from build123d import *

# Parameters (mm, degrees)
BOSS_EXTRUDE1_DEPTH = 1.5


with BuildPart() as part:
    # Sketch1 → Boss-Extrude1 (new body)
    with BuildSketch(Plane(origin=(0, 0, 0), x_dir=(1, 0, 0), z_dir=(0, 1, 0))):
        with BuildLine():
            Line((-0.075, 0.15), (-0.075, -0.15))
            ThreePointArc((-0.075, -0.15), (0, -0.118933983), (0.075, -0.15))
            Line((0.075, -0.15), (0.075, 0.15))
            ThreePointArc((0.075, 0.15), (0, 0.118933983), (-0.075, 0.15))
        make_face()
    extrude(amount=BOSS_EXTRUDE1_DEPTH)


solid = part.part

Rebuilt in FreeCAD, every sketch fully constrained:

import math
import FreeCAD as App
import Part
import Sketcher
from FreeCAD import Vector
Q = App.Units.Quantity

doc = App.newDocument("Part")
body = doc.addObject("PartDesign::Body", "Body")

sketch1 = body.newObject("Sketcher::SketchObject", "Sketch")
sketch1.AttachmentSupport = (doc.getObject("XZ_Plane"), [""])
sketch1.MapMode = "FlatFace"
sketch1.addGeometry([
    Part.LineSegment(Vector(-0.07, -0.15, 0), Vector(-0.07, 0.15, 0)),
    Part.ArcOfCircle(Part.Circle(Vector(0, 0.23, 0), Vector(0, 0, 1), 0.11), math.radians(-135), math.radians(-45)),
    Part.LineSegment(Vector(0.07, 0.15, 0), Vector(0.07, -0.15, 0)),
    Part.ArcOfCircle(Part.Circle(Vector(0, -0.23, 0), Vector(0, 0, 1), 0.11), math.radians(45), math.radians(135)),
], False)
sketch1.addConstraint([
    Sketcher.Constraint("Coincident", 0, 2, 1, 1),
    Sketcher.Constraint("Coincident", 1, 2, 2, 1),
    Sketcher.Constraint("Coincident", 2, 2, 3, 1),
    Sketcher.Constraint("Coincident", 3, 2, 0, 1),
    Sketcher.Constraint("Vertical", 0),
    Sketcher.Constraint("Vertical", 2),
    Sketcher.Constraint("Equal", 1, 3),
    Sketcher.Constraint("Symmetric", 1, 3, 3, 3, -1, 1),
    Sketcher.Constraint("Symmetric", 0, 2, 1, 2, -2),
    Sketcher.Constraint("DistanceY", 0, 1, 0, 2, Q("0.3 mm")),
    Sketcher.Constraint("DistanceY", 3, 3, 1, 3, Q("0.45 mm")),
    Sketcher.Constraint("DistanceX", 0, 2, 1, 2, Q("0.15 mm")),
])
pad1 = body.newObject("PartDesign::Pad", "Pad")
pad1.Profile = sketch1
pad1.Length = 1.5
pad1.Reversed = True

doc.recompute()
